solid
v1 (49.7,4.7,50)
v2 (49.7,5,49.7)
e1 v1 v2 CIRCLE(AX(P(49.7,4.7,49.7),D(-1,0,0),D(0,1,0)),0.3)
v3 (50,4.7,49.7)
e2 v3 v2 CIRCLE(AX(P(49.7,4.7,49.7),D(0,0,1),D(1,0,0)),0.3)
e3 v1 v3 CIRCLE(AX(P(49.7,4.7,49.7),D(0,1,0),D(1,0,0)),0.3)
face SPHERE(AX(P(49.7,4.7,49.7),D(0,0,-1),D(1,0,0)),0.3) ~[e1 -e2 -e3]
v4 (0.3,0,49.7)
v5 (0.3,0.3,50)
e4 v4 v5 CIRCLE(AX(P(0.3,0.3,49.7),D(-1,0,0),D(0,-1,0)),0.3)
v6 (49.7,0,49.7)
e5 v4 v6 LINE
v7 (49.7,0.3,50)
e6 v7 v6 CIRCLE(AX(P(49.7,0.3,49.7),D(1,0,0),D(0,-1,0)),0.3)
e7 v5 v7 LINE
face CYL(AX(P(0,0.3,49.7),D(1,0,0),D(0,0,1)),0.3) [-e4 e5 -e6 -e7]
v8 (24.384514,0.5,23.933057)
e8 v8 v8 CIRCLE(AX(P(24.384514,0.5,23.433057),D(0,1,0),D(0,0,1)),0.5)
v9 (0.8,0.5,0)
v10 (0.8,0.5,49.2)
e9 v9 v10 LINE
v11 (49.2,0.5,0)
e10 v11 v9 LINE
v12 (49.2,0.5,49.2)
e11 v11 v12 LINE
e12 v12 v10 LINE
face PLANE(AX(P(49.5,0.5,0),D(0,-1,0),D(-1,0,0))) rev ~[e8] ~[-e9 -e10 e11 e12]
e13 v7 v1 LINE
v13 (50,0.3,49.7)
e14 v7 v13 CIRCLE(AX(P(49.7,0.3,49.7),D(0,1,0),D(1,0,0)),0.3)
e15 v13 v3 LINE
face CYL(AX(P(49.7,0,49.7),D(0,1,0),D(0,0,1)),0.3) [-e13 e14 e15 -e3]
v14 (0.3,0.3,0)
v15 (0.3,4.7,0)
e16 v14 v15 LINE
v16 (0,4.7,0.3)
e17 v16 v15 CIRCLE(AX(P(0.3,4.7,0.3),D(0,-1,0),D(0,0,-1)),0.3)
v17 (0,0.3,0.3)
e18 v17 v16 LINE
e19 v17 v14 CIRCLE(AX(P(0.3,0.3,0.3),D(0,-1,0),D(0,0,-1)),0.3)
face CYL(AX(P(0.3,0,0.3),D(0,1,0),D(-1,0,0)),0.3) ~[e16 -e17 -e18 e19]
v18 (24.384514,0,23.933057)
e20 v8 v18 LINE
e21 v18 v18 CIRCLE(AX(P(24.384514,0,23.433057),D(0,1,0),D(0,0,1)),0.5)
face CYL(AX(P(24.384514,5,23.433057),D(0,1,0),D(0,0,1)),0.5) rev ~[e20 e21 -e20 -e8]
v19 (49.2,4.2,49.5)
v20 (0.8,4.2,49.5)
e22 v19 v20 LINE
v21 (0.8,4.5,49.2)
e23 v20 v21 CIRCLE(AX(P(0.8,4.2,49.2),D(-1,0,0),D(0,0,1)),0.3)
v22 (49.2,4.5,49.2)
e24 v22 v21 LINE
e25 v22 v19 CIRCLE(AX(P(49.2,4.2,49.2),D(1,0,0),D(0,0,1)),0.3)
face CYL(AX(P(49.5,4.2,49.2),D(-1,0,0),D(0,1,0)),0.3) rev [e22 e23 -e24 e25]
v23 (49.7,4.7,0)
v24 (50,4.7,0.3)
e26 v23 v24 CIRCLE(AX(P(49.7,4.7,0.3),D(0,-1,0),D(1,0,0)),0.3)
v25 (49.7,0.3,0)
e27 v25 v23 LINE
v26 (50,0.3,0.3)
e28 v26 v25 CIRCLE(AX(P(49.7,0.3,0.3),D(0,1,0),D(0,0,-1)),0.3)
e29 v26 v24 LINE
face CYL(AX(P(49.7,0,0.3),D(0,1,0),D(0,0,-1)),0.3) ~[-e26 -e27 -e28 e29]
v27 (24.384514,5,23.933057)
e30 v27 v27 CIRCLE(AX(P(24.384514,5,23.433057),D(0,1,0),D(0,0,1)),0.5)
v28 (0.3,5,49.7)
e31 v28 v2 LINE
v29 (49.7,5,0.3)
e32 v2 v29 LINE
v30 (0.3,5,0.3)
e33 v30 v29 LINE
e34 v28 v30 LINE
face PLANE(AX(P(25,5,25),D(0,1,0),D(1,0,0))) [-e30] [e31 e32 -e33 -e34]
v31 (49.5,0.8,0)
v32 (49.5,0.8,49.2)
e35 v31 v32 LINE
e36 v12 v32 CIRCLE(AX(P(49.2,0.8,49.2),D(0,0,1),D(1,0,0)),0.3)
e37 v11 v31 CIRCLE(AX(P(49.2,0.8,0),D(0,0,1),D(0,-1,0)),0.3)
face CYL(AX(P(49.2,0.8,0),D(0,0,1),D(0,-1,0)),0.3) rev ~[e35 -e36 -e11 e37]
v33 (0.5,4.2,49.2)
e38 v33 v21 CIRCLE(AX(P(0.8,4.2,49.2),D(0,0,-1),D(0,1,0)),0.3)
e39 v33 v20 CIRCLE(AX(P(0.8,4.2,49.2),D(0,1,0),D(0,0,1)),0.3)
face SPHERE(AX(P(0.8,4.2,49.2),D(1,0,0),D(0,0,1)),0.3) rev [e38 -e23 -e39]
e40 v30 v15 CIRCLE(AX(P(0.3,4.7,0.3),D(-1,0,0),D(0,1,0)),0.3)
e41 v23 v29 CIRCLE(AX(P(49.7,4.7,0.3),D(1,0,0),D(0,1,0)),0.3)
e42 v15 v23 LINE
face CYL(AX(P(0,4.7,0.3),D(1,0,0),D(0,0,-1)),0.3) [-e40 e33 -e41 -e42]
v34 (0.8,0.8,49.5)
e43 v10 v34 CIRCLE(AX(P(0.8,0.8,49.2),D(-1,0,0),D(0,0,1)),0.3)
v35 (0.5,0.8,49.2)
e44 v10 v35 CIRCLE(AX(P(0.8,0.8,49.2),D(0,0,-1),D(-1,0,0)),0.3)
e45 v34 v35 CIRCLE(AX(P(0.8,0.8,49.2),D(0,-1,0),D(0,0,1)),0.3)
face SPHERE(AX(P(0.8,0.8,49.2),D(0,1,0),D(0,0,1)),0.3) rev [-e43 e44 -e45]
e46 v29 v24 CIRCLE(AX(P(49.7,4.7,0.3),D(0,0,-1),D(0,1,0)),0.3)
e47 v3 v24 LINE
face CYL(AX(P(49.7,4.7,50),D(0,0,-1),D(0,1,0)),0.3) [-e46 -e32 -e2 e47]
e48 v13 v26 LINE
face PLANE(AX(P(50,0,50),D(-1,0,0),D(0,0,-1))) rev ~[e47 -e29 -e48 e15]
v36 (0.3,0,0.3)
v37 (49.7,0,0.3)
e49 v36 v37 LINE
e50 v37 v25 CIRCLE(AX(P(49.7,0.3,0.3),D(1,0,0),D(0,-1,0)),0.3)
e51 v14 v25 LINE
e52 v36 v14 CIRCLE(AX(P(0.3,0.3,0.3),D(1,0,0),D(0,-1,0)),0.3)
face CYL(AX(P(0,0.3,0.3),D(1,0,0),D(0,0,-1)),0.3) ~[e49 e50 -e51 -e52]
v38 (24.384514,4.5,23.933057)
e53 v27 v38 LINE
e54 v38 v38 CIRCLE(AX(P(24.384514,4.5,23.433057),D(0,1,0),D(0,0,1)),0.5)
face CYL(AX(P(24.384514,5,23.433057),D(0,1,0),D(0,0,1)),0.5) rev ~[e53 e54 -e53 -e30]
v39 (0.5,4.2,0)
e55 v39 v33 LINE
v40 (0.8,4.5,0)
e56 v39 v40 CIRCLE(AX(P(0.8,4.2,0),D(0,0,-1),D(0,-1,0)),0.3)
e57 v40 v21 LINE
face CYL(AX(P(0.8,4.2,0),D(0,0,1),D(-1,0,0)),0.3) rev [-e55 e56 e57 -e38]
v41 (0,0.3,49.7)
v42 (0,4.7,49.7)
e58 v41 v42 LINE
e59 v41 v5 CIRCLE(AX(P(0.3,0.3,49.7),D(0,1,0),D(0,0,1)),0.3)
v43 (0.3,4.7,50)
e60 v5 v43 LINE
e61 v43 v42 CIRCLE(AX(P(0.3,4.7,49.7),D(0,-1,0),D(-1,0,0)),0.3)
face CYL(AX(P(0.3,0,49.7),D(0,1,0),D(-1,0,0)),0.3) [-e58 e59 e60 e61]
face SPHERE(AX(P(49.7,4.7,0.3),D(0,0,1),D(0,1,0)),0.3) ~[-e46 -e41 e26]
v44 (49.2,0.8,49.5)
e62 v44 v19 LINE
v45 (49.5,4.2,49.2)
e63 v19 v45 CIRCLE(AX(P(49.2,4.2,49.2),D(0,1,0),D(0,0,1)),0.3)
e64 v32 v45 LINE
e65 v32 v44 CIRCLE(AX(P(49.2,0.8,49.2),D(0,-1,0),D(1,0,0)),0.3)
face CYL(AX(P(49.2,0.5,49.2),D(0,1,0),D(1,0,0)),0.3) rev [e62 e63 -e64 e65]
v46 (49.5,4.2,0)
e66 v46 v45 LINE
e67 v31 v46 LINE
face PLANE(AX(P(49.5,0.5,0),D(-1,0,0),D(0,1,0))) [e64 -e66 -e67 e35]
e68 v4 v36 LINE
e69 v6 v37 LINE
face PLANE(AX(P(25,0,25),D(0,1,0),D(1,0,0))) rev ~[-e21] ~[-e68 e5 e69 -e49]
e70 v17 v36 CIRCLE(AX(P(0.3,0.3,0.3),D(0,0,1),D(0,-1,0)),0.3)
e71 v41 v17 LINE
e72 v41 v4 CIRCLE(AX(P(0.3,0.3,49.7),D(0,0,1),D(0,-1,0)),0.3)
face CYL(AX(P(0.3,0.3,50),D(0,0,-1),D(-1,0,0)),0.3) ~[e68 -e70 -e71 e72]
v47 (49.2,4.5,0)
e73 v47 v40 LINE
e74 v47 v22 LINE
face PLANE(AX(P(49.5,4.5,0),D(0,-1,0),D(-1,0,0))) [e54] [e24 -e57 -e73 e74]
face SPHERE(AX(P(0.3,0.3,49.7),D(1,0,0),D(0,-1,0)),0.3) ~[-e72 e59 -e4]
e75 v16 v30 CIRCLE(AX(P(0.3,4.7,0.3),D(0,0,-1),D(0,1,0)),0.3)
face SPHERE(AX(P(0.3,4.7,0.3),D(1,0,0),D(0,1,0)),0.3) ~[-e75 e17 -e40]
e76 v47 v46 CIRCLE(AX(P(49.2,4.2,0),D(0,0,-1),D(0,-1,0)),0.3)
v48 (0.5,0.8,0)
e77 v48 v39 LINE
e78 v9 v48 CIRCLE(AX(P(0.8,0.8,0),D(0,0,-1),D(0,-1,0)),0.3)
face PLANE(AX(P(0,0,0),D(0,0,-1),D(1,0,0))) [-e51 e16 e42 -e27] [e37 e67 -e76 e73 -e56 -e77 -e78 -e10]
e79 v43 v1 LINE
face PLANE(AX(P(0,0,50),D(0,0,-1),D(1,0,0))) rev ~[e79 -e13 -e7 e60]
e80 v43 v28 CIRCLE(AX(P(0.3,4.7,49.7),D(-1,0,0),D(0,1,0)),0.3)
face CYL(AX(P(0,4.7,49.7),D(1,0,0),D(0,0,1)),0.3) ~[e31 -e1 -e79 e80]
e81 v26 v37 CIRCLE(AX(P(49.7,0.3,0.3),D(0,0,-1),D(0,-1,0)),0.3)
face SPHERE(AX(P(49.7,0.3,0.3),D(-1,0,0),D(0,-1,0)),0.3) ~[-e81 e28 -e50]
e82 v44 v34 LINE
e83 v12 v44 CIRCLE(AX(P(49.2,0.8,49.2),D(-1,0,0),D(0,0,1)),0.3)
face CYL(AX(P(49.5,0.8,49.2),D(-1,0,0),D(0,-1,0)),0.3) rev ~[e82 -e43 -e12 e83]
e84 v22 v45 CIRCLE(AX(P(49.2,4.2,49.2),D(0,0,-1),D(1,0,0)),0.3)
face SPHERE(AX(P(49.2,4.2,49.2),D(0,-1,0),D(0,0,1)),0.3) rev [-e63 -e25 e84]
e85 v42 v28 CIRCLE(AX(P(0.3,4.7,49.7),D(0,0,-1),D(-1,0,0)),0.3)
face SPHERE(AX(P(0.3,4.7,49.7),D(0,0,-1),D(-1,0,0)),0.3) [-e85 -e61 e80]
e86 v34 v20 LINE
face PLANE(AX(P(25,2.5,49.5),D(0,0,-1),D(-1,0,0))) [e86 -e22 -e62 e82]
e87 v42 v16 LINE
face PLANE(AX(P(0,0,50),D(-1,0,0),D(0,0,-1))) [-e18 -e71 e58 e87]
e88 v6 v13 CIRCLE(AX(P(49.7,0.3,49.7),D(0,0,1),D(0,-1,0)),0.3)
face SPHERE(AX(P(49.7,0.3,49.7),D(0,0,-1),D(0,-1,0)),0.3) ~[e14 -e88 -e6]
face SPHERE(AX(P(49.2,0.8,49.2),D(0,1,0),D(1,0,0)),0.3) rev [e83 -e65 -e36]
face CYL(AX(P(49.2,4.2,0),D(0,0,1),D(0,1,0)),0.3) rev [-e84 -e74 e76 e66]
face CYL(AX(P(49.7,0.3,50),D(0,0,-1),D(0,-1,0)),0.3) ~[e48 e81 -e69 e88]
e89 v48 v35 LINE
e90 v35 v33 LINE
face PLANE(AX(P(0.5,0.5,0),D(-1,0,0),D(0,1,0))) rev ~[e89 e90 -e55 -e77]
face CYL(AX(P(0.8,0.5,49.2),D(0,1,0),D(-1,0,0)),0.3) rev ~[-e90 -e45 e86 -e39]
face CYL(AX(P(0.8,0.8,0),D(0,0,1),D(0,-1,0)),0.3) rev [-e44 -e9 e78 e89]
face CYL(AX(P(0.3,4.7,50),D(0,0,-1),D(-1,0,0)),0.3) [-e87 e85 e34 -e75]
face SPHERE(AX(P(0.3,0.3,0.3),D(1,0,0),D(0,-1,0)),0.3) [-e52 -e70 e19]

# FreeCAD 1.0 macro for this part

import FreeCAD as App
import Part
import Sketcher
Q = App.Units.Quantity


def edges_at(feature, points):
    """Names of the edges that pass closest to the given points."""
    edges = feature.Shape.Edges
    near = lambda p: min(range(len(edges)), key=lambda i: edges[i].distToShape(Part.Vertex(*p))[0])
    return sorted({f"Edge{near(p) + 1}" for p in points})


def add_polygon(sketch, points):
    """Adds a closed chain of lines whose ends are joined by coincident constraints."""
    first, n = sketch.GeometryCount, len(points)
    for a, b in zip(points, points[1:] + points[:1]):
        sketch.addGeometry(Part.LineSegment(App.Vector(*a, 0), App.Vector(*b, 0)), False)
    for i in range(n):
        sketch.addConstraint(Sketcher.Constraint("Coincident", first + i, 2, first + (i + 1) % n, 1))

doc = App.newDocument("Part")
params = doc.addObject("Spreadsheet::Sheet", "Params")
for row, (alias, value) in enumerate([
    ("sketch1_width", "50 mm"),
    ("pad1_length", "5 mm"),
    ("sketch2_width", "49 mm"),
    ("sketch2_height", "4 mm"),
    ("pocket1_length", "49.5 mm"),
    ("sketch3_diameter", "1 mm"),
    ("fillet_radius", "0.3 mm"),
], start=1):
    params.set(f"A{row}", alias)
    params.set(f"B{row}", "=" + value)
    params.setAlias(f"B{row}", alias)

body = doc.addObject("PartDesign::Body", "Body")

sketch1 = doc.addObject("Sketcher::SketchObject", "Sketch")
body.addObject(sketch1)
sketch1.AttachmentSupport = (doc.XZ_Plane, [""])
sketch1.MapMode = "FlatFace"
add_polygon(sketch1, [(0, 0), (0, 50), (50, 50), (50, 0)])
sketch1.addConstraint([
    Sketcher.Constraint("Vertical", 0),
    Sketcher.Constraint("Horizontal", 1),
    Sketcher.Constraint("Vertical", 2),
    Sketcher.Constraint("Horizontal", 3),
    Sketcher.Constraint("Coincident", 3, 2, -1, 1),
    Sketcher.Constraint("Equal", 3, 0),
    Sketcher.Constraint("DistanceX", 1, 1, 1, 2, Q("50 mm")),
])
sketch1.setExpression("Constraints[10]", "Params.sketch1_width")
pad1 = doc.addObject("PartDesign::Pad", "Pad")
body.addObject(pad1)
pad1.Profile = sketch1
pad1.setExpression("Length", "Params.pad1_length")
pad1.Reversed = True

sketch2 = doc.addObject("Sketcher::SketchObject", "Sketch001")
body.addObject(sketch2)
sketch2.AttachmentSupport = (doc.XY_Plane, [""])
sketch2.MapMode = "FlatFace"
add_polygon(sketch2, [(49.5, 4.5), (49.5, 0.5), (0.5, 0.5), (0.5, 4.5)])
sketch2.addConstraint([
    Sketcher.Constraint("Vertical", 0),
    Sketcher.Constraint("Horizontal", 1),
    Sketcher.Constraint("Vertical", 2),
    Sketcher.Constraint("Horizontal", 3),
    Sketcher.Constraint("DistanceX", 1, 2, 1, 1, Q("49 mm")),
    Sketcher.Constraint("DistanceY", 0, 2, 0, 1, Q("4 mm")),
    Sketcher.Constraint("DistanceX", -1, 1, 0, 2, Q("49.5 mm")),
    Sketcher.Constraint("DistanceY", -1, 1, 0, 2, Q("0.5 mm")),
])
sketch2.setExpression("Constraints[8]", "Params.sketch2_width")
sketch2.setExpression("Constraints[9]", "Params.sketch2_height")
pocket1 = doc.addObject("PartDesign::Pocket", "Pocket")
body.addObject(pocket1)
pocket1.Profile = sketch2
pocket1.setExpression("Length", "Params.pocket1_length")
pocket1.Reversed = True

sketch3 = doc.addObject("Sketcher::SketchObject", "Sketch002")
body.addObject(sketch3)
sketch3.AttachmentSupport = (doc.XZ_Plane, [""])
sketch3.MapMode = "FlatFace"
sketch3.AttachmentOffset = App.Placement(App.Vector(0, 0, -5), App.Rotation())
sketch3.addGeometry(Part.Circle(App.Vector(24.4, 23.4, 0), App.Vector(0, 0, 1), 0.5), False)
sketch3.addConstraint([
    Sketcher.Constraint("Diameter", 0, Q("1 mm")),
    Sketcher.Constraint("DistanceX", -1, 1, 0, 3, Q("24.384514 mm")),
    Sketcher.Constraint("DistanceY", -1, 1, 0, 3, Q("23.433057 mm")),
])
sketch3.setExpression("Constraints[0]", "Params.sketch3_diameter")
pocket2 = doc.addObject("PartDesign::Pocket", "Pocket001")
body.addObject(pocket2)
pocket2.Profile = sketch3
pocket2.Type = "ThroughAll"
pocket2.Reversed = True
doc.recompute()

fillet = doc.addObject("PartDesign::Fillet", "Fillet")
body.addObject(fillet)
fillet.Base = (pocket2, edges_at(pocket2, [
    (50, 5, 25),
    (49.5, 2.5, 49.5),
    (25, 5, 0),
    (49.5, 0.5, 24.75),
    (25, 4.5, 49.5),
    (49.5, 4.5, 24.75),
    (0.5, 2.5, 49.5),
    (0.5, 4.5, 24.75),
    (25, 0.5, 49.5),
    (0.5, 0.5, 24.75),
    (0, 5, 25),
    (25, 0, 0),
    (50, 0, 25),
    (25, 0, 50),
    (0, 0, 25),
    (0, 2.5, 0),
    (50, 2.5, 0),
    (50, 2.5, 50),
    (0, 2.5, 50),
    (25, 5, 50),
]))
fillet.setExpression("Radius", "Params.fillet_radius")

doc.recompute()
